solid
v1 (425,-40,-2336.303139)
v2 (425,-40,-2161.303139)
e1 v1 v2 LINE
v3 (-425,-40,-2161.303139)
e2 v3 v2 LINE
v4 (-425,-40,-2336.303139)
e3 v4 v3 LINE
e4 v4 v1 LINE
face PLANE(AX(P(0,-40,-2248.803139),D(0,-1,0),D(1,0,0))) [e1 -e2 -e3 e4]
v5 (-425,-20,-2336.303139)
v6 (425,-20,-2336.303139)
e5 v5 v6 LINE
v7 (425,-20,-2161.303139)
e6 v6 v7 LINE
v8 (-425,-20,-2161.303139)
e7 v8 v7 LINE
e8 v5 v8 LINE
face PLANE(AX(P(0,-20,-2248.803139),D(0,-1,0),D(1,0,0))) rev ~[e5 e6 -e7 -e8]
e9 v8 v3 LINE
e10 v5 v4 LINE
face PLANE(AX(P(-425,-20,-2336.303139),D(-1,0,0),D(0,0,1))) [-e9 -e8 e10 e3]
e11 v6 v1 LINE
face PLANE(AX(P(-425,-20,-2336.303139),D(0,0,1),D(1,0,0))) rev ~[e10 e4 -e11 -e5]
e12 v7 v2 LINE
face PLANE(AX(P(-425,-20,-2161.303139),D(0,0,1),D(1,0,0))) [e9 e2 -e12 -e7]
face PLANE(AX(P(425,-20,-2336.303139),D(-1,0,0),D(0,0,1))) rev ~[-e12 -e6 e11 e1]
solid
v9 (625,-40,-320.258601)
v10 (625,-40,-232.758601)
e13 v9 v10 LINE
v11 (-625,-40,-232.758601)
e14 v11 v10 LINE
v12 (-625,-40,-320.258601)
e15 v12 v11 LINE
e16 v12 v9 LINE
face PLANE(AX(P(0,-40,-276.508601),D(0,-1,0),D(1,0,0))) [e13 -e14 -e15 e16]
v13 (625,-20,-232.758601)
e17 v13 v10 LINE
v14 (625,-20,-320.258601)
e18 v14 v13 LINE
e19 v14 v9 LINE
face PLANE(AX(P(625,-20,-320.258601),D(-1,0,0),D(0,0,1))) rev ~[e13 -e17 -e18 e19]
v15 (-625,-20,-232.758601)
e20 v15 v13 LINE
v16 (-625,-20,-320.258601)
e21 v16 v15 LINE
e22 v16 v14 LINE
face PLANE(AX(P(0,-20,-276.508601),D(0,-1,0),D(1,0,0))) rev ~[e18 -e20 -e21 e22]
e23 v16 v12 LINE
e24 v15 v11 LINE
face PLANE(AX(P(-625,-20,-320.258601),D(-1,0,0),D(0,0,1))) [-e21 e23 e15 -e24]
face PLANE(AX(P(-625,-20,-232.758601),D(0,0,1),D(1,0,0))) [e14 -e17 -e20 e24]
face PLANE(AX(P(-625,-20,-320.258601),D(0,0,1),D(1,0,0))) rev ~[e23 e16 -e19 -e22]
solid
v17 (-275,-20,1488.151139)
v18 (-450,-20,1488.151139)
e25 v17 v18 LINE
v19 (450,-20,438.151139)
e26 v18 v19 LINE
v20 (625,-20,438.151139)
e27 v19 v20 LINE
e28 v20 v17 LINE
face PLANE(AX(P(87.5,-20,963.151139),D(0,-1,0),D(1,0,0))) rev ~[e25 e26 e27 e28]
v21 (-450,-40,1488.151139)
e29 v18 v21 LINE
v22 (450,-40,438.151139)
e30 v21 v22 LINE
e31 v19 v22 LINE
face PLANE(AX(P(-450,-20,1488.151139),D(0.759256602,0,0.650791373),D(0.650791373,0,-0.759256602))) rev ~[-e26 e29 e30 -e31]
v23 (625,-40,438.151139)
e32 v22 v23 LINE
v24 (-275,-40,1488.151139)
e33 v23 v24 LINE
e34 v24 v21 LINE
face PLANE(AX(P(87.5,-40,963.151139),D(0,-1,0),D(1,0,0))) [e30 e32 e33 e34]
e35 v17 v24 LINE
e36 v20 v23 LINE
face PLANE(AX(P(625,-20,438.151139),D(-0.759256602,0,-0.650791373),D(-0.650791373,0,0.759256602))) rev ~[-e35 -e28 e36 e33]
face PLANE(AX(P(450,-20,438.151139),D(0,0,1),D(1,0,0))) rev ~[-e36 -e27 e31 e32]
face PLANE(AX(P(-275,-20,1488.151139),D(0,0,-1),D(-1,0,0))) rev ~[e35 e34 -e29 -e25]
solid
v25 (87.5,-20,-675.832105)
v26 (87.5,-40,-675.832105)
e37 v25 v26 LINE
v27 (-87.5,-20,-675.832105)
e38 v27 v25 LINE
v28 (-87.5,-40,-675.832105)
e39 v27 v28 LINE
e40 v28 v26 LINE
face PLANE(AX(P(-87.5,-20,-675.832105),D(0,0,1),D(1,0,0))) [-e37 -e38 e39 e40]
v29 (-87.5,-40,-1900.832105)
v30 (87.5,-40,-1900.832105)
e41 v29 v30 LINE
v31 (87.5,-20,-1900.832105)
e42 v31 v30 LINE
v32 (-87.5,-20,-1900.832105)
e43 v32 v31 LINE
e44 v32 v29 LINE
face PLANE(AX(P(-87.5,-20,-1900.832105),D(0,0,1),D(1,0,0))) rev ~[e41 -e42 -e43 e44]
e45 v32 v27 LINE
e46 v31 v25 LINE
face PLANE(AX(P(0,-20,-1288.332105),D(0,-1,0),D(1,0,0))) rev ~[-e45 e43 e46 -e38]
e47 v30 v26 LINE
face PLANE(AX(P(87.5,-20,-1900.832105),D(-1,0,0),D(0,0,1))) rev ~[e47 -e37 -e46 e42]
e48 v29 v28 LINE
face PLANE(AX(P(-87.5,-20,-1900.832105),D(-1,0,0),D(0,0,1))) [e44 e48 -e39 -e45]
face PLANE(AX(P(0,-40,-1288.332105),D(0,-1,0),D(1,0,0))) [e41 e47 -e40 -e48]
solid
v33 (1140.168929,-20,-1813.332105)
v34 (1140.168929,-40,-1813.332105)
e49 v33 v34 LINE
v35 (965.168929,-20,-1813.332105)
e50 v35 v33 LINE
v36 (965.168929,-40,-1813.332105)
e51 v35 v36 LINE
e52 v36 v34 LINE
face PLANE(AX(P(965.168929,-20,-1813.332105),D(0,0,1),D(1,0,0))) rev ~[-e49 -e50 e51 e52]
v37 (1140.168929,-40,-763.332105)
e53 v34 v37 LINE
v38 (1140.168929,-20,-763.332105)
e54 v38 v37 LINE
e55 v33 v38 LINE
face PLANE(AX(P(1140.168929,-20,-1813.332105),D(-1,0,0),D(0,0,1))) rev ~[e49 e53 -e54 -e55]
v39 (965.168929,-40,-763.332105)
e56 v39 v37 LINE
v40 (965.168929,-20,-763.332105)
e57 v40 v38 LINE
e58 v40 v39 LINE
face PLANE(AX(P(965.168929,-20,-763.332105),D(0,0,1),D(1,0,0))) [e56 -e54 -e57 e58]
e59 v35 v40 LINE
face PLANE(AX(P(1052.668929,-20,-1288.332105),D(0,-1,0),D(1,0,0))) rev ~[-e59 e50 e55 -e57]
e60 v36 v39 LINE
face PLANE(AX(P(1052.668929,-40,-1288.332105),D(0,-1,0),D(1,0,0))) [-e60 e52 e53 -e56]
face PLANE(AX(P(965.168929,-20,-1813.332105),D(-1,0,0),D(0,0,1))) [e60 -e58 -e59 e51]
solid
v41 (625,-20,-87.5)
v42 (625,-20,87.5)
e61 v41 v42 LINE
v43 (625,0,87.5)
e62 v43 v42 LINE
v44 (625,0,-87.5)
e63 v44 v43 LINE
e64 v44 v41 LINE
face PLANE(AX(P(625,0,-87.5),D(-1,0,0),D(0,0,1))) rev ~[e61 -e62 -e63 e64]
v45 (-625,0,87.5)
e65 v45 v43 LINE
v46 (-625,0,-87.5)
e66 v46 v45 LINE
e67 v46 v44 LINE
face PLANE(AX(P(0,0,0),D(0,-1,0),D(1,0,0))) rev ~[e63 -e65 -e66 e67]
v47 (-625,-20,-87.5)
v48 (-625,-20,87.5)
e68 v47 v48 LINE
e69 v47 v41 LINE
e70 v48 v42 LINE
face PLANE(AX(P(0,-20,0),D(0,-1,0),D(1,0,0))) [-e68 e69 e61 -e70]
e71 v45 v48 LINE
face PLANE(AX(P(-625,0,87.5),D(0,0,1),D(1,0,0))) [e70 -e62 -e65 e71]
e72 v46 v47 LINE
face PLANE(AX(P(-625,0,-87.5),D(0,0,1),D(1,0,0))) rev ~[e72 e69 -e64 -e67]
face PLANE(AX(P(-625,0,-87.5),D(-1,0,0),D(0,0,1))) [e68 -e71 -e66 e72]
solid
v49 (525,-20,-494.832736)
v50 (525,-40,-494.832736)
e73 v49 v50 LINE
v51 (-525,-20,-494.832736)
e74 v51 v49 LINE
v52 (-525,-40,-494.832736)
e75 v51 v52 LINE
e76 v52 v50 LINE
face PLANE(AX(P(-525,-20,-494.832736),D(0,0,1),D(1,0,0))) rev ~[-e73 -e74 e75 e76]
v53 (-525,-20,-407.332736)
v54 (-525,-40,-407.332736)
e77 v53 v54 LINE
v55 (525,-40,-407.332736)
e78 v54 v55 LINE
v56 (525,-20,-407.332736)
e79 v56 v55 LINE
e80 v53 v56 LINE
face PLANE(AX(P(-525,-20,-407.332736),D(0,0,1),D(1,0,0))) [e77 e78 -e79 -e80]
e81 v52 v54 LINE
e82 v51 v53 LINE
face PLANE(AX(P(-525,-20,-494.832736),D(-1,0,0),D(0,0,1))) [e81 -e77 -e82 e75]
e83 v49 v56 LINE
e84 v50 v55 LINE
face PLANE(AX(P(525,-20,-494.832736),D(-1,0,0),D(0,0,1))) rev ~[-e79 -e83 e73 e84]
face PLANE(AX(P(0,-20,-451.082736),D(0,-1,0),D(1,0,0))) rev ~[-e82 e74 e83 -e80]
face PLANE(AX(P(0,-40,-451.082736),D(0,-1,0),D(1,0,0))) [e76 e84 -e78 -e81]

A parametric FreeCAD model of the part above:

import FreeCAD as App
import Part
import Sketcher
from FreeCAD import Vector
Q = App.Units.Quantity

doc = App.newDocument("Part")
body = doc.addObject("PartDesign::Body", "Body")

# Sketch on XZ plane
sketch1 = body.newObject("Sketcher::SketchObject", "Sketch")
sketch1.AttachmentSupport = (doc.getObject("XZ_Plane"), [""])
sketch1.MapMode = "FlatFace"
sketch1.addGeometry(Part.LineSegment(Vector(-625, 88, 0), Vector(-625, -88, 0)), False)
sketch1.addGeometry(Part.LineSegment(Vector(-625, -88, 0), Vector(625, -88, 0)), False)
sketch1.addGeometry(Part.LineSegment(Vector(625, -88, 0), Vector(625, 88, 0)), False)
sketch1.addGeometry(Part.LineSegment(Vector(625, 88, 0), Vector(-625, 88, 0)), False)
sketch1.addConstraint(Sketcher.Constraint("Coincident", 0, 2, 1, 1))
sketch1.addConstraint(Sketcher.Constraint("Coincident", 1, 2, 2, 1))
sketch1.addConstraint(Sketcher.Constraint("Coincident", 2, 2, 3, 1))
sketch1.addConstraint(Sketcher.Constraint("Coincident", 3, 2, 0, 1))
sketch1.addConstraint(Sketcher.Constraint("Vertical", 0))
sketch1.addConstraint(Sketcher.Constraint("Horizontal", 1))
sketch1.addConstraint(Sketcher.Constraint("Vertical", 2))
sketch1.addConstraint(Sketcher.Constraint("Horizontal", 3))
sketch1.addConstraint(Sketcher.Constraint("Symmetric", 0, 2, 2, 2, -1, 1))
sketch1.addConstraint(Sketcher.Constraint("DistanceX", 1, 1, 1, 2, Q("1250 mm")))
sketch1.addConstraint(Sketcher.Constraint("DistanceY", 0, 2, 0, 1, Q("175 mm")))
pad1 = body.newObject("PartDesign::Pad", "Pad")
pad1.Profile = sketch1
pad1.Length = 20
body2 = doc.addObject("PartDesign::Body", "Body001")
body2.AllowCompound = True

# Sketch on XZ plane
sketch2 = body2.newObject("Sketcher::SketchObject", "Sketch001")
sketch2.AttachmentSupport = (doc.getObject("XZ_Plane001"), [""])
sketch2.MapMode = "FlatFace"
sketch2.AttachmentOffset = App.Placement(Vector(0, 0, 20), App.Rotation())
sketch2.addGeometry(Part.LineSegment(Vector(-625, -233, 0), Vector(-625, -320, 0)), False)
sketch2.addGeometry(Part.LineSegment(Vector(-625, -320, 0), Vector(625, -320, 0)), False)
sketch2.addGeometry(Part.LineSegment(Vector(625, -320, 0), Vector(625, -233, 0)), False)
sketch2.addGeometry(Part.LineSegment(Vector(625, -233, 0), Vector(-625, -233, 0)), False)
sketch2.addGeometry(Part.LineSegment(Vector(-525, -407, 0), Vector(-525, -495, 0)), False)
sketch2.addGeometry(Part.LineSegment(Vector(-525, -495, 0), Vector(525, -495, 0)), False)
sketch2.addGeometry(Part.LineSegment(Vector(525, -495, 0), Vector(525, -407, 0)), False)
sketch2.addGeometry(Part.LineSegment(Vector(525, -407, 0), Vector(-525, -407, 0)), False)
sketch2.addConstraint(Sketcher.Constraint("Coincident", 0, 2, 1, 1))
sketch2.addConstraint(Sketcher.Constraint("Coincident", 1, 2, 2, 1))
sketch2.addConstraint(Sketcher.Constraint("Coincident", 2, 2, 3, 1))
sketch2.addConstraint(Sketcher.Constraint("Coincident", 3, 2, 0, 1))
sketch2.addConstraint(Sketcher.Constraint("Coincident", 4, 2, 5, 1))
sketch2.addConstraint(Sketcher.Constraint("Coincident", 5, 2, 6, 1))
sketch2.addConstraint(Sketcher.Constraint("Coincident", 6, 2, 7, 1))
sketch2.addConstraint(Sketcher.Constraint("Coincident", 7, 2, 4, 1))
sketch2.addConstraint(Sketcher.Constraint("Vertical", 0))
sketch2.addConstraint(Sketcher.Constraint("Horizontal", 1))
sketch2.addConstraint(Sketcher.Constraint("Vertical", 2))
sketch2.addConstraint(Sketcher.Constraint("Horizontal", 3))
sketch2.addConstraint(Sketcher.Constraint("Vertical", 4))
sketch2.addConstraint(Sketcher.Constraint("Horizontal", 5))
sketch2.addConstraint(Sketcher.Constraint("Vertical", 6))
sketch2.addConstraint(Sketcher.Constraint("Horizontal", 7))
sketch2.addConstraint(Sketcher.Constraint("Equal", 2, 4))
sketch2.addConstraint(Sketcher.Constraint("DistanceX", 1, 1, 1, 2, Q("1250 mm")))
sketch2.addConstraint(Sketcher.Constraint("DistanceX", 5, 1, 5, 2, Q("1050 mm")))
sketch2.addConstraint(Sketcher.Constraint("DistanceY", 0, 2, 0, 1, Q("87.5 mm")))
sketch2.addConstraint(Sketcher.Constraint("DistanceX", 0, 2, -1, 1, Q("625 mm")))
sketch2.addConstraint(Sketcher.Constraint("DistanceX", 4, 2, -1, 1, Q("525 mm")))
sketch2.addConstraint(Sketcher.Constraint("DistanceY", 0, 2, -1, 1, Q("320.258601 mm")))
sketch2.addConstraint(Sketcher.Constraint("DistanceY", 4, 2, -1, 1, Q("494.832736 mm")))
pad2 = body2.newObject("PartDesign::Pad", "Pad001")
pad2.Profile = sketch2
pad2.Length = 20
body3 = doc.addObject("PartDesign::Body", "Body002")

# Sketch on XZ plane
sketch3 = body3.newObject("Sketcher::SketchObject", "Sketch002")
sketch3.AttachmentSupport = (doc.getObject("XZ_Plane002"), [""])
sketch3.MapMode = "FlatFace"
sketch3.AttachmentOffset = App.Placement(Vector(0, 0, 20), App.Rotation())
sketch3.addGeometry(Part.LineSegment(Vector(-275, 1488, 0), Vector(-450, 1488, 0)), False)
sketch3.addGeometry(Part.LineSegment(Vector(-450, 1488, 0), Vector(450, 438, 0)), False)
sketch3.addGeometry(Part.LineSegment(Vector(450, 438, 0), Vector(625, 438, 0)), False)
sketch3.addGeometry(Part.LineSegment(Vector(625, 438, 0), Vector(-275, 1488, 0)), False)
sketch3.addConstraint(Sketcher.Constraint("Coincident", 0, 2, 1, 1))
sketch3.addConstraint(Sketcher.Constraint("Coincident", 1, 2, 2, 1))
sketch3.addConstraint(Sketcher.Constraint("Coincident", 2, 2, 3, 1))
sketch3.addConstraint(Sketcher.Constraint("Coincident", 3, 2, 0, 1))
sketch3.addConstraint(Sketcher.Constraint("Horizontal", 0))
sketch3.addConstraint(Sketcher.Constraint("Horizontal", 2))
sketch3.addConstraint(Sketcher.Constraint("Parallel", 1, 3))
sketch3.addConstraint(Sketcher.Constraint("DistanceX", 0, 2, 0, 1, Q("175 mm")))
sketch3.addConstraint(Sketcher.Constraint("DistanceX", 0, 2, -1, 1, Q("450 mm")))
sketch3.addConstraint(Sketcher.Constraint("DistanceX", -1, 1, 1, 2, Q("450 mm")))
sketch3.addConstraint(Sketcher.Constraint("DistanceY", 1, 2, 0, 2, Q("1050 mm")))
sketch3.addConstraint(Sketcher.Constraint("DistanceY", -1, 1, 0, 2, Q("1488.151139 mm")))
pad3 = body3.newObject("PartDesign::Pad", "Pad002")
pad3.Profile = sketch3
pad3.Length = 20
body4 = doc.addObject("PartDesign::Body", "Body003")
body4.AllowCompound = True

# Sketch on XZ plane
sketch4 = body4.newObject("Sketcher::SketchObject", "Sketch003")
sketch4.AttachmentSupport = (doc.getObject("XZ_Plane003"), [""])
sketch4.MapMode = "FlatFace"
sketch4.AttachmentOffset = App.Placement(Vector(0, 0, 20), App.Rotation())
sketch4.addGeometry(Part.LineSegment(Vector(-88, -676, 0), Vector(-88, -1901, 0)), False)
sketch4.addGeometry(Part.LineSegment(Vector(-88, -1901, 0), Vector(88, -1901, 0)), False)
sketch4.addGeometry(Part.LineSegment(Vector(88, -1901, 0), Vector(88, -676, 0)), False)
sketch4.addGeometry(Part.LineSegment(Vector(88, -676, 0), Vector(-88, -676, 0)), False)
sketch4.addGeometry(Part.LineSegment(Vector(-425, -2161, 0), Vector(-425, -2336, 0)), False)
sketch4.addGeometry(Part.LineSegment(Vector(-425, -2336, 0), Vector(425, -2336, 0)), False)
sketch4.addGeometry(Part.LineSegment(Vector(425, -2336, 0), Vector(425, -2161, 0)), False)
sketch4.addGeometry(Part.LineSegment(Vector(425, -2161, 0), Vector(-425, -2161, 0)), False)
sketch4.addGeometry(Part.LineSegment(Vector(965, -763, 0), Vector(965, -1813, 0)), False)
sketch4.addGeometry(Part.LineSegment(Vector(965, -1813, 0), Vector(1140, -1813, 0)), False)
sketch4.addGeometry(Part.LineSegment(Vector(1140, -1813, 0), Vector(1140, -763, 0)), False)
sketch4.addGeometry(Part.LineSegment(Vector(1140, -763, 0), Vector(965, -763, 0)), False)
sketch4.addConstraint(Sketcher.Constraint("Coincident", 0, 2, 1, 1))
sketch4.addConstraint(Sketcher.Constraint("Coincident", 1, 2, 2, 1))
sketch4.addConstraint(Sketcher.Constraint("Coincident", 2, 2, 3, 1))
sketch4.addConstraint(Sketcher.Constraint("Coincident", 3, 2, 0, 1))
sketch4.addConstraint(Sketcher.Constraint("Coincident", 4, 2, 5, 1))
sketch4.addConstraint(Sketcher.Constraint("Coincident", 5, 2, 6, 1))
sketch4.addConstraint(Sketcher.Constraint("Coincident", 6, 2, 7, 1))
sketch4.addConstraint(Sketcher.Constraint("Coincident", 7, 2, 4, 1))
sketch4.addConstraint(Sketcher.Constraint("Coincident", 8, 2, 9, 1))
sketch4.addConstraint(Sketcher.Constraint("Coincident", 9, 2, 10, 1))
sketch4.addConstraint(Sketcher.Constraint("Coincident", 10, 2, 11, 1))
sketch4.addConstraint(Sketcher.Constraint("Coincident", 11, 2, 8, 1))
sketch4.addConstraint(Sketcher.Constraint("Vertical", 0))
sketch4.addConstraint(Sketcher.Constraint("Horizontal", 1))
sketch4.addConstraint(Sketcher.Constraint("Vertical", 2))
sketch4.addConstraint(Sketcher.Constraint("Horizontal", 3))
sketch4.addConstraint(Sketcher.Constraint("Vertical", 4))
sketch4.addConstraint(Sketcher.Constraint("Horizontal", 5))
sketch4.addConstraint(Sketcher.Constraint("Vertical", 6))
sketch4.addConstraint(Sketcher.Constraint("Horizontal", 7))
sketch4.addConstraint(Sketcher.Constraint("Vertical", 8))
sketch4.addConstraint(Sketcher.Constraint("Horizontal", 9))
sketch4.addConstraint(Sketcher.Constraint("Vertical", 10))
sketch4.addConstraint(Sketcher.Constraint("Horizontal", 11))
sketch4.addConstraint(Sketcher.Constraint("Equal", 3, 9))
sketch4.addConstraint(Sketcher.Constraint("Equal", 11, 4))
sketch4.addConstraint(Sketcher.Constraint("DistanceX", 1, 1, 1, 2, Q("175 mm")))
sketch4.addConstraint(Sketcher.Constraint("DistanceX", 5, 1, 5, 2, Q("850 mm")))
sketch4.addConstraint(Sketcher.Constraint("DistanceY", 0, 2, 0, 1, Q("1225 mm")))
sketch4.addConstraint(Sketcher.Constraint("DistanceY", 8, 2, 8, 1, Q("1050 mm")))
sketch4.addConstraint(Sketcher.Constraint("DistanceX", 4, 2, -1, 1, Q("425 mm")))
sketch4.addConstraint(Sketcher.Constraint("DistanceX", 0, 2, -1, 1, Q("87.5 mm")))
sketch4.addConstraint(Sketcher.Constraint("DistanceY", 1, 2, 8, 2, Q("87.5 mm")))
sketch4.addConstraint(Sketcher.Constraint("DistanceY", 4, 2, -1, 1, Q("2336.303139 mm")))
sketch4.addConstraint(Sketcher.Constraint("DistanceX", -1, 1, 8, 2, Q("965.168929 mm")))
sketch4.addConstraint(Sketcher.Constraint("DistanceY", 0, 2, -1, 1, Q("1900.832105 mm")))
pad4 = body4.newObject("PartDesign::Pad", "Pad003")
pad4.Profile = sketch4
pad4.Length = 20

doc.recompute()
